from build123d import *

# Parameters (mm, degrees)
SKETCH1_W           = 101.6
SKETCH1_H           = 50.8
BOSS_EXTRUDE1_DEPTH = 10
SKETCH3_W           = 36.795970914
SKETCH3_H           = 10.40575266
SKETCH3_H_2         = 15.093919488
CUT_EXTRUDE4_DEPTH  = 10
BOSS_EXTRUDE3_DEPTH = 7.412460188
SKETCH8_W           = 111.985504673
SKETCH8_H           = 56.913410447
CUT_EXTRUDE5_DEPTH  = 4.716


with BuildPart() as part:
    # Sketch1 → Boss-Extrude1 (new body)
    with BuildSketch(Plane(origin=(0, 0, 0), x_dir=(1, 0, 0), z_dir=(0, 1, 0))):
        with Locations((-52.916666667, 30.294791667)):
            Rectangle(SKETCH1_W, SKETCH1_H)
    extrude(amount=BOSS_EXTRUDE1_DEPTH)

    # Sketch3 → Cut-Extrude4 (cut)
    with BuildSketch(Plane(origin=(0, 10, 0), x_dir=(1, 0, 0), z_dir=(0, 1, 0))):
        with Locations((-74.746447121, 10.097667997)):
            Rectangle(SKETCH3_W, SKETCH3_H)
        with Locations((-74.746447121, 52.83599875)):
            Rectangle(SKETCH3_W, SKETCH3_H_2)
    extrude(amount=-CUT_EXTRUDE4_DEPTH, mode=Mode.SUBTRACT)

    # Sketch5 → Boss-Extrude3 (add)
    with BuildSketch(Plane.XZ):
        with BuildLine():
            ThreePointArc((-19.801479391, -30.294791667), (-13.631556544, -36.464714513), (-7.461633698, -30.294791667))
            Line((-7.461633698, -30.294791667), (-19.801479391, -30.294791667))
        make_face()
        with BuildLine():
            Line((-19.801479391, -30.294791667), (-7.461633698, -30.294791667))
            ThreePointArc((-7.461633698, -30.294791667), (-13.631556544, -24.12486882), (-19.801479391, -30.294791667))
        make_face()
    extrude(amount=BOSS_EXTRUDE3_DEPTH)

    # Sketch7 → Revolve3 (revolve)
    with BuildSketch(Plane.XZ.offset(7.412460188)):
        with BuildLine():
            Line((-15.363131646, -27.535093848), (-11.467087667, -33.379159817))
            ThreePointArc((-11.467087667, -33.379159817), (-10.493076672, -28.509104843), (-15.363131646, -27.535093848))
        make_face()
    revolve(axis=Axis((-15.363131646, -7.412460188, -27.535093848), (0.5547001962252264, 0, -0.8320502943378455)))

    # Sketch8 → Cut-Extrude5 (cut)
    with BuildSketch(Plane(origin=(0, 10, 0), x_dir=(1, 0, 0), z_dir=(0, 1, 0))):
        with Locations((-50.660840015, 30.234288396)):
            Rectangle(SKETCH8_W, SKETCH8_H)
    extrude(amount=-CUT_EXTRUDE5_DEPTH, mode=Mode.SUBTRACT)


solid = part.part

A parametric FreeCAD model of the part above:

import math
import FreeCAD as App
import Part
import Sketcher

V = App.Vector
Q = App.Units.Quantity

doc = App.newDocument("Part")
body = doc.addObject("PartDesign::Body", "Body")

# Sketch on XZ plane
sketch1 = body.newObject("Sketcher::SketchObject", "Sketch")
sketch1.AttachmentSupport = (doc.getObject("XZ_Plane"), [""])
sketch1.MapMode = "FlatFace"
sketch1.addGeometry([
    Part.LineSegment(V(-104, -56, 0), V(-104, -5, 0)),
    Part.LineSegment(V(-104, -5, 0), V(-2, -5, 0)),
    Part.LineSegment(V(-2, -5, 0), V(-2, -56, 0)),
    Part.LineSegment(V(-2, -56, 0), V(-104, -56, 0)),
], False)
sketch1.addConstraint([
    Sketcher.Constraint("Coincident", 0, 2, 1, 1),
    Sketcher.Constraint("Coincident", 1, 2, 2, 1),
    Sketcher.Constraint("Coincident", 2, 2, 3, 1),
    Sketcher.Constraint("Coincident", 3, 2, 0, 1),
    Sketcher.Constraint("Vertical", 0),
    Sketcher.Constraint("Horizontal", 1),
    Sketcher.Constraint("Vertical", 2),
    Sketcher.Constraint("Horizontal", 3),
    Sketcher.Constraint("DistanceX", 1, 1, 1, 2, Q("4 in")),
    Sketcher.Constraint("DistanceY", 0, 1, 0, 2, Q("2 in")),
    Sketcher.Constraint("DistanceY", 0, 2, -1, 1, Q("4.894792 mm")),
    Sketcher.Constraint("DistanceX", 0, 2, -1, 1, Q("103.716667 mm")),
])
pad1 = body.newObject("PartDesign::Pad", "Pad")
pad1.Profile = sketch1
pad1.Length = 10
pad1.Reversed = True

# Sketch on XZ plane
sketch2 = body.newObject("Sketcher::SketchObject", "Sketch001")
sketch2.AttachmentSupport = (doc.getObject("XZ_Plane"), [""])
sketch2.MapMode = "FlatFace"
sketch2.AttachmentOffset = App.Placement(V(0, 0, -10), App.Rotation())
sketch2.addGeometry([
    Part.LineSegment(V(-93, -15, 0), V(-93, -5, 0)),  # 0
    Part.LineSegment(V(-93, -5, 0), V(-56, -5, 0)),  # 1
    Part.LineSegment(V(-56, -5, 0), V(-56, -15, 0)),  # 2
    Part.LineSegment(V(-56, -15, 0), V(-93, -15, 0)),  # 3
    Part.LineSegment(V(-93, -60, 0), V(-93, -45, 0)),  # 4
    Part.LineSegment(V(-93, -45, 0), V(-56, -45, 0)),  # 5
    Part.LineSegment(V(-56, -45, 0), V(-56, -60, 0)),  # 6
    Part.LineSegment(V(-56, -60, 0), V(-93, -60, 0)),  # 7
], False)
sketch2.addConstraint([
    Sketcher.Constraint("Coincident", 0, 2, 1, 1),
    Sketcher.Constraint("Coincident", 1, 2, 2, 1),
    Sketcher.Constraint("Coincident", 2, 2, 3, 1),
    Sketcher.Constraint("Coincident", 3, 2, 0, 1),
    Sketcher.Constraint("Coincident", 4, 2, 5, 1),
    Sketcher.Constraint("Coincident", 5, 2, 6, 1),
    Sketcher.Constraint("Coincident", 6, 2, 7, 1),
    Sketcher.Constraint("Coincident", 7, 2, 4, 1),
    Sketcher.Constraint("Vertical", 0),
    Sketcher.Constraint("Horizontal", 1),
    Sketcher.Constraint("Vertical", 2),
    Sketcher.Constraint("Horizontal", 3),
    Sketcher.Constraint("Vertical", 4),
    Sketcher.Constraint("Horizontal", 5),
    Sketcher.Constraint("Vertical", 6),
    Sketcher.Constraint("Horizontal", 7),
    Sketcher.Constraint("Vertical", 3, 2, 4, 2),
    Sketcher.Constraint("Vertical", 2, 2, 5, 2),
    Sketcher.Constraint("DistanceX", 1, 1, 1, 2, Q("36.795971 mm")),
    Sketcher.Constraint("DistanceY", 4, 1, 4, 2, Q("15.093919 mm")),
    Sketcher.Constraint("DistanceY", 0, 1, 0, 2, Q("10.405753 mm")),
    Sketcher.Constraint("DistanceY", 0, 2, -1, 1, Q("4.894792 mm")),
    Sketcher.Constraint("DistanceX", 1, 2, -1, 1, Q("56.348462 mm")),
    Sketcher.Constraint("DistanceY", 4, 2, -1, 1, Q("45.289039 mm")),
])
pocket1 = body.newObject("PartDesign::Pocket", "Pocket")
pocket1.Profile = sketch2
pocket1.Length = 10
pocket1.Reversed = True

# Sketch on XZ plane
sketch3 = body.newObject("Sketcher::SketchObject", "Sketch002")
sketch3.AttachmentSupport = (doc.getObject("XZ_Plane"), [""])
sketch3.MapMode = "FlatFace"
sketch3.addGeometry(Part.Circle(V(-14, -30, 0), V(0, 0, 1), 6), False)
sketch3.addConstraint([
    Sketcher.Constraint("Diameter", 0, Q("12.339846 mm")),
    Sketcher.Constraint("DistanceY", 0, 3, -1, 1, Q("30.294792 mm")),
    Sketcher.Constraint("DistanceX", 0, 3, -1, 1, Q("13.631557 mm")),
])
pad2 = body.newObject("PartDesign::Pad", "Pad001")
pad2.Profile = sketch3
pad2.Length = 7.41246

# Sketch on XZ plane
sketch4 = body.newObject("Sketcher::SketchObject", "Sketch003")
sketch4.AttachmentSupport = (doc.getObject("XZ_Plane"), [""])
sketch4.MapMode = "FlatFace"
sketch4.AttachmentOffset = App.Placement(V(0, 0, 7.41246), App.Rotation())
sketch4.addGeometry([
    Part.LineSegment(V(-15.4, -27.5, 0), V(-11.5, -33.4, 0)),
    Part.ArcOfCircle(Part.Circle(V(-13.4, -30.5, 0), V(0, 0, 1), 3.5), math.radians(-56), math.radians(124)),
], False)
sketch4.addGeometry(Part.LineSegment(V(-15.4, -27.5, 0), V(-11.5, -33.4, 0)), True)  # axis
sketch4.addConstraint([
    Sketcher.Constraint("Coincident", 0, 1, 1, 2),
    Sketcher.Constraint("Coincident", 1, 1, 0, 2),
    Sketcher.Constraint("Coincident", 2, 1, 0, 1),
    Sketcher.Constraint("Coincident", 2, 2, 1, 1),
    Sketcher.Constraint("Radius", 1, Q("3.511847 mm")),
    Sketcher.Constraint("DistanceX", 1, 3, -1, 1, Q("13.41511 mm")),
    Sketcher.Constraint("DistanceX", 0, 1, -1, 1, Q("15.363132 mm")),
    Sketcher.Constraint("DistanceY", 1, 1, -1, 1, Q("33.37916 mm")),
    Sketcher.Constraint("DistanceX", 1, 3, 1, 1, Q("1.948022 mm")),
])
revolution = body.newObject("PartDesign::Revolution", "Revolution")
revolution.Profile = sketch4
revolution.ReferenceAxis = (sketch4, ["Axis0"])
revolution.Angle = 360

# Sketch on XZ plane
sketch5 = body.newObject("Sketcher::SketchObject", "Sketch004")
sketch5.AttachmentSupport = (doc.getObject("XZ_Plane"), [""])
sketch5.MapMode = "FlatFace"
sketch5.AttachmentOffset = App.Placement(V(0, 0, -10), App.Rotation())
sketch5.addGeometry([
    Part.LineSegment(V(-107, -59, 0), V(-107, -2, 0)),
    Part.LineSegment(V(-107, -2, 0), V(5, -2, 0)),
    Part.LineSegment(V(5, -2, 0), V(5, -59, 0)),
    Part.LineSegment(V(5, -59, 0), V(-107, -59, 0)),
], False)
sketch5.addConstraint([
    Sketcher.Constraint("Coincident", 0, 2, 1, 1),
    Sketcher.Constraint("Coincident", 1, 2, 2, 1),
    Sketcher.Constraint("Coincident", 2, 2, 3, 1),
    Sketcher.Constraint("Coincident", 3, 2, 0, 1),
    Sketcher.Constraint("Vertical", 0),
    Sketcher.Constraint("Horizontal", 1),
    Sketcher.Constraint("Vertical", 2),
    Sketcher.Constraint("Horizontal", 3),
    Sketcher.Constraint("DistanceY", 0, 1, 0, 2, Q("56.91341 mm")),
    Sketcher.Constraint("DistanceX", 1, 1, 1, 2, Q("111.985505 mm")),
    Sketcher.Constraint("DistanceX", 0, 2, -1, 1, Q("106.653592 mm")),
    Sketcher.Constraint("DistanceY", 0, 2, -1, 1, Q("1.777583 mm")),
])
pocket2 = body.newObject("PartDesign::Pocket", "Pocket001")
pocket2.Profile = sketch5
pocket2.Length = 4.716
pocket2.Reversed = True

doc.recompute()
